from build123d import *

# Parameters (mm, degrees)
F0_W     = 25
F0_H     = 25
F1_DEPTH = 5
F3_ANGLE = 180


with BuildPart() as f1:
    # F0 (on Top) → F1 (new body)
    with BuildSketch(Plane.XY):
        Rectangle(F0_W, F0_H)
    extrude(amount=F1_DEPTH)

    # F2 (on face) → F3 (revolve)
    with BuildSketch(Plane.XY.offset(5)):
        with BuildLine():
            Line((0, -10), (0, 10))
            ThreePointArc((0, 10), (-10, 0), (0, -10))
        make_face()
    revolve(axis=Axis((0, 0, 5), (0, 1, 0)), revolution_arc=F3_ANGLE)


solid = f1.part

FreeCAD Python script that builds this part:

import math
import FreeCAD as App
import Part
import Sketcher

doc = App.newDocument("Part")
body = doc.addObject("PartDesign::Body", "Body")

# Sketch on XY plane
sketch1 = body.newObject("Sketcher::SketchObject", "Sketch")
sketch1.AttachmentSupport = (doc.getObject("XY_Plane"), [""])
sketch1.MapMode = "FlatFace"
sketch1.addGeometry([
    Part.LineSegment(App.Vector(-12.5, 12.5, 0), App.Vector(-12.5, -12.5, 0)),
    Part.LineSegment(App.Vector(-12.5, -12.5, 0), App.Vector(12.5, -12.5, 0)),
    Part.LineSegment(App.Vector(12.5, -12.5, 0), App.Vector(12.5, 12.5, 0)),
    Part.LineSegment(App.Vector(12.5, 12.5, 0), App.Vector(-12.5, 12.5, 0)),
], False)
sketch1.addConstraint([
    Sketcher.Constraint("Coincident", 0, 2, 1, 1),
    Sketcher.Constraint("Coincident", 1, 2, 2, 1),
    Sketcher.Constraint("Coincident", 2, 2, 3, 1),
    Sketcher.Constraint("Coincident", 3, 2, 0, 1),
    Sketcher.Constraint("Vertical", 0),
    Sketcher.Constraint("Horizontal", 1),
    Sketcher.Constraint("Vertical", 2),
    Sketcher.Constraint("Horizontal", 3),
    Sketcher.Constraint("Symmetric", 0, 2, 2, 2, -1, 1),
    Sketcher.Constraint("Equal", 3, 0),
    Sketcher.Constraint("DistanceX", 1, 1, 1, 2, 25.0),
])
pad1 = body.newObject("PartDesign::Pad", "Pad")
pad1.Profile = sketch1
pad1.Length = 5

# Sketch on XY plane
sketch2 = body.newObject("Sketcher::SketchObject", "Sketch001")
sketch2.AttachmentSupport = (doc.getObject("XY_Plane"), [""])
sketch2.MapMode = "FlatFace"
sketch2.AttachmentOffset = App.Placement(App.Vector(0, 0, 5), App.Rotation())
sketch2.addGeometry([
    Part.LineSegment(App.Vector(0, -10, 0), App.Vector(0, 10, 0)),
    Part.ArcOfCircle(Part.Circle(App.Vector(0, 0, 0), App.Vector(0, 0, 1), 10), math.radians(90), math.radians(270)),
], False)
sketch2.addConstraint([
    Sketcher.Constraint("Coincident", 0, 1, 1, 2),
    Sketcher.Constraint("Coincident", 1, 1, 0, 2),
    Sketcher.Constraint("Vertical", 0),
    Sketcher.Constraint("Coincident", 1, 3, -1, 1),
    Sketcher.Constraint("PointOnObject", 0, 1, -2),
    Sketcher.Constraint("Radius", 1, 10.0),
])
revolution = body.newObject("PartDesign::Revolution", "Revolution")
revolution.Profile = sketch2
revolution.ReferenceAxis = (sketch2, ["V_Axis"])
revolution.Angle = 180

doc.recompute()
